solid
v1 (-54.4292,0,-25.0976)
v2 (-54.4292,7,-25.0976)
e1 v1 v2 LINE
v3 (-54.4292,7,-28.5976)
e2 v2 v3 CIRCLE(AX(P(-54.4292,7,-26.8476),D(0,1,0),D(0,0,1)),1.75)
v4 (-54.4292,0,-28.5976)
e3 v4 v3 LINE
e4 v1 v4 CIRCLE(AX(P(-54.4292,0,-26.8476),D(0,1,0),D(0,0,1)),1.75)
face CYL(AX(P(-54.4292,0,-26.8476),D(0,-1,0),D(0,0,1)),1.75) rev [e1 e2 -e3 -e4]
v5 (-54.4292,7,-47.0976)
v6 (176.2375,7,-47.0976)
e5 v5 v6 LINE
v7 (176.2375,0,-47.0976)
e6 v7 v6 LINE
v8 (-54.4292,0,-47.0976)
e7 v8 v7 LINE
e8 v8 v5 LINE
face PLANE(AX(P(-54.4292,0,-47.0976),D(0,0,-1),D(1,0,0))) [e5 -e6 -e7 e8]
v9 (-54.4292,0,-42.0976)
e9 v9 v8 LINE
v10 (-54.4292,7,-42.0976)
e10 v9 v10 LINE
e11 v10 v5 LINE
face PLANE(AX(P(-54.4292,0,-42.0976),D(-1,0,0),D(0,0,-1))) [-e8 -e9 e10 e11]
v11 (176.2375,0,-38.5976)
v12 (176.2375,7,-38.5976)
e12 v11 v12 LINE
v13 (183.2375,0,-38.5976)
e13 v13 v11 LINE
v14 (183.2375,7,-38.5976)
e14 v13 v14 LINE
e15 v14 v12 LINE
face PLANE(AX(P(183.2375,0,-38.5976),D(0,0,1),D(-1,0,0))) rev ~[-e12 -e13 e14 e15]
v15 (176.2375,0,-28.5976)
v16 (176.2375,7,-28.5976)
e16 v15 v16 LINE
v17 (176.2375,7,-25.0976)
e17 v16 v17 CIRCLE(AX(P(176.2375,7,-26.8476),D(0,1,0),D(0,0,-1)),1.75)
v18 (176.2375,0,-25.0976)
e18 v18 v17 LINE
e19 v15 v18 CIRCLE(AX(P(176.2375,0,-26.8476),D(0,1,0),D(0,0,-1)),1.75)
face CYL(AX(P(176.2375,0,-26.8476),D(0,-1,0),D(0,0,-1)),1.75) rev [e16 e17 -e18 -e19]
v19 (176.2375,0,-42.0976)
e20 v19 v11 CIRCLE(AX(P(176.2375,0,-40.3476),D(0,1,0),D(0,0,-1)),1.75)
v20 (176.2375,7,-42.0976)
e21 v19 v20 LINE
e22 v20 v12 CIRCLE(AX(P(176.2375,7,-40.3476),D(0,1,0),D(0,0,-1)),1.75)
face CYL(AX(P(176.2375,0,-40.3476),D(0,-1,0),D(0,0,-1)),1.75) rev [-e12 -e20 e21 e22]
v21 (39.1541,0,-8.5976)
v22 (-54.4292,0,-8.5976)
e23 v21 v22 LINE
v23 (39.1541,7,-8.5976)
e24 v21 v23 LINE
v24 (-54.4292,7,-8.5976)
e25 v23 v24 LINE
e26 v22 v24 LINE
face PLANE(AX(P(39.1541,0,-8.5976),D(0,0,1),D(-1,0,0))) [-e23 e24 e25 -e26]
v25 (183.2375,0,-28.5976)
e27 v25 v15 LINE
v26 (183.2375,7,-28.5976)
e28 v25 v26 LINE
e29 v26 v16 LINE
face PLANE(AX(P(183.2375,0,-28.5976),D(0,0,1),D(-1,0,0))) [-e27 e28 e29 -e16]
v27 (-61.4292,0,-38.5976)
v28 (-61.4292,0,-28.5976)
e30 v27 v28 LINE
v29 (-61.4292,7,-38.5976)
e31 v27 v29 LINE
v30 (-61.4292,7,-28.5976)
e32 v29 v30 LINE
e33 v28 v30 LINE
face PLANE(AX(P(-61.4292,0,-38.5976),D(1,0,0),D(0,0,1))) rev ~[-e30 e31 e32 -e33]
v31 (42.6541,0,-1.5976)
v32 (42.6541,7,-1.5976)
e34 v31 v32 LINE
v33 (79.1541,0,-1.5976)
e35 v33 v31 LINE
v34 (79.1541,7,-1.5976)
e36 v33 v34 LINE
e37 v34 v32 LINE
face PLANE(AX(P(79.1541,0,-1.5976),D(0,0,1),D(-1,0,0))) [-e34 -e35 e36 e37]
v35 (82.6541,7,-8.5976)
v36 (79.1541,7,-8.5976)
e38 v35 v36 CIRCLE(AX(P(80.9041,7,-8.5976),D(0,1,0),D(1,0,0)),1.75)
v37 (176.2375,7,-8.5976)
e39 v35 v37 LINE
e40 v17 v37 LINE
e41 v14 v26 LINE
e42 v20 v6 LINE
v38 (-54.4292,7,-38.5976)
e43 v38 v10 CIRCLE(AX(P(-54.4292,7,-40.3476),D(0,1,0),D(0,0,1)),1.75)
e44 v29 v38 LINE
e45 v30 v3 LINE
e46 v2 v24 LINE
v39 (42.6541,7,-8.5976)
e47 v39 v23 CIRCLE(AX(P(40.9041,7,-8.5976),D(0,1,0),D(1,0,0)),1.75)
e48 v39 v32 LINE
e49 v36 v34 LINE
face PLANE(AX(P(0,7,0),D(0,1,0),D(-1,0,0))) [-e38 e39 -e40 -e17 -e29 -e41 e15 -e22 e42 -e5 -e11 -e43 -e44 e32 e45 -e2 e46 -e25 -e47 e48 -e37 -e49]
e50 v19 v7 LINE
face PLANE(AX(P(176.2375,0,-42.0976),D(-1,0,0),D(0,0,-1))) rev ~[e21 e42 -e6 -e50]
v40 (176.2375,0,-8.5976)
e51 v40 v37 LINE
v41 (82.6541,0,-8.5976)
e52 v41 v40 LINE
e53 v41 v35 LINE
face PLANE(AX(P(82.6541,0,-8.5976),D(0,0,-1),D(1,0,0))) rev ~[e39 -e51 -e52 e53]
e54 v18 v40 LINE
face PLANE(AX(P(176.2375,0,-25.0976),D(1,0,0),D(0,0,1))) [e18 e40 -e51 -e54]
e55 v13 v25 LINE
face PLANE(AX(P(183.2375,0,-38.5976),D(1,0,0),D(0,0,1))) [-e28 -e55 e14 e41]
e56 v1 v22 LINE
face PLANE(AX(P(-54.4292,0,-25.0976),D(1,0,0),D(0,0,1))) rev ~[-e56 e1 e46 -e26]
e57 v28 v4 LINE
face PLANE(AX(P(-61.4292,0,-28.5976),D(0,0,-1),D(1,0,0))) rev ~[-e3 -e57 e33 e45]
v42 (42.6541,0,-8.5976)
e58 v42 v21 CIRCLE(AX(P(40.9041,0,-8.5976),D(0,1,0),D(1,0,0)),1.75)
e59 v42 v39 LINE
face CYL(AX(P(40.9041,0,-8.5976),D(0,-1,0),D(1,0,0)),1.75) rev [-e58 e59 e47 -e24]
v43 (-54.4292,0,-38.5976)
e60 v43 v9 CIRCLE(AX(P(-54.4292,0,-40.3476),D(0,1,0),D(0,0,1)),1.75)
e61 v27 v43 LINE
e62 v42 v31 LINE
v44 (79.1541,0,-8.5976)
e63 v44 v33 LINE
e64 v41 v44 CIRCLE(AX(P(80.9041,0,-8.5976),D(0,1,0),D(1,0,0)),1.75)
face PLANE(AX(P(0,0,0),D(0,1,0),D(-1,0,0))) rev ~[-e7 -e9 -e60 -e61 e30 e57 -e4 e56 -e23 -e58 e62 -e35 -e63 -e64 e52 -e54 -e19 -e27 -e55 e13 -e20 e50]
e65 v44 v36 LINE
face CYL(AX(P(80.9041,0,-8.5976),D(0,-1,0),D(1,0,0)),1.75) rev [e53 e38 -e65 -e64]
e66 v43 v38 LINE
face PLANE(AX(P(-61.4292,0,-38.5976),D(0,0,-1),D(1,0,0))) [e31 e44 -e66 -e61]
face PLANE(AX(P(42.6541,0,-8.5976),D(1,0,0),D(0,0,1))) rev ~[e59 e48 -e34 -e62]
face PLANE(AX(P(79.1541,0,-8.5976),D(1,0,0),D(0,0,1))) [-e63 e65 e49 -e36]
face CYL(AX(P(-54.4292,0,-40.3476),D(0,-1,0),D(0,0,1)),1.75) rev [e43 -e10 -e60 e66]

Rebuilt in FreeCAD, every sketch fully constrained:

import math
import FreeCAD as App
import Part
import Sketcher
from FreeCAD import Vector
Q = App.Units.Quantity

doc = App.newDocument("Part")
params = doc.addObject("Spreadsheet::Sheet", "Params")
for row, (alias, value) in enumerate([
    ("sketch1_width", "7 mm"),
    ("sketch1_height", "10 mm"),
    ("sketch1_height2", "5 mm"),
    ("sketch1_radius", "1.75 mm"),
    ("sketch1_width2", "36.5 mm"),
    ("pad1_length", "7 mm"),
], start=1):
    params.set(f"A{row}", alias)
    params.set(f"B{row}", "=" + value)
    params.setAlias(f"B{row}", alias)

body = doc.addObject("PartDesign::Body", "Body")

sketch1 = body.newObject("Sketcher::SketchObject", "Sketch")
sketch1.AttachmentSupport = (doc.getObject("XZ_Plane"), [""])
sketch1.MapMode = "FlatFace"
sketch1.addGeometry(Part.ArcOfCircle(Part.Circle(Vector(-54.4, -40.3, 0), Vector(0, 0, 1), 1.8), math.radians(-90), math.radians(90)), False)
sketch1.addGeometry(Part.LineSegment(Vector(-54.4, -38.6, 0), Vector(-61.4, -38.6, 0)), False)
sketch1.addGeometry(Part.LineSegment(Vector(-61.4, -38.6, 0), Vector(-61.4, -28.6, 0)), False)
sketch1.addGeometry(Part.LineSegment(Vector(-61.4, -28.6, 0), Vector(-54.4, -28.6, 0)), False)
sketch1.addGeometry(Part.ArcOfCircle(Part.Circle(Vector(-54.4, -26.8, 0), Vector(0, 0, 1), 1.8), math.radians(-90), math.radians(90)), False)
sketch1.addGeometry(Part.LineSegment(Vector(-54.4, -25.1, 0), Vector(-54.4, -8.6, 0)), False)
sketch1.addGeometry(Part.LineSegment(Vector(-54.4, -8.6, 0), Vector(39.2, -8.6, 0)), False)
sketch1.addGeometry(Part.ArcOfCircle(Part.Circle(Vector(40.9, -8.6, 0), Vector(0, 0, 1), 1.8), math.radians(180), math.radians(360)), False)
sketch1.addGeometry(Part.LineSegment(Vector(42.7, -8.6, 0), Vector(42.7, -1.6, 0)), False)
sketch1.addGeometry(Part.LineSegment(Vector(42.7, -1.6, 0), Vector(79.2, -1.6, 0)), False)
sketch1.addGeometry(Part.LineSegment(Vector(79.2, -1.6, 0), Vector(79.2, -8.6, 0)), False)
sketch1.addGeometry(Part.ArcOfCircle(Part.Circle(Vector(80.9, -8.6, 0), Vector(0, 0, 1), 1.8), math.radians(180), math.radians(360)), False)
sketch1.addGeometry(Part.LineSegment(Vector(82.7, -8.6, 0), Vector(176.2, -8.6, 0)), False)
sketch1.addGeometry(Part.LineSegment(Vector(176.2, -8.6, 0), Vector(176.2, -25.1, 0)), False)
sketch1.addGeometry(Part.ArcOfCircle(Part.Circle(Vector(176.2, -26.8, 0), Vector(0, 0, 1), 1.8), math.radians(90), math.radians(270)), False)
sketch1.addGeometry(Part.LineSegment(Vector(176.2, -28.6, 0), Vector(183.2, -28.6, 0)), False)
sketch1.addGeometry(Part.LineSegment(Vector(183.2, -28.6, 0), Vector(183.2, -38.6, 0)), False)
sketch1.addGeometry(Part.LineSegment(Vector(183.2, -38.6, 0), Vector(176.2, -38.6, 0)), False)
sketch1.addGeometry(Part.ArcOfCircle(Part.Circle(Vector(176.2, -40.3, 0), Vector(0, 0, 1), 1.8), math.radians(90), math.radians(270)), False)
sketch1.addGeometry(Part.LineSegment(Vector(176.2, -42.1, 0), Vector(176.2, -47.1, 0)), False)
sketch1.addGeometry(Part.LineSegment(Vector(176.2, -47.1, 0), Vector(-54.4, -47.1, 0)), False)
sketch1.addGeometry(Part.LineSegment(Vector(-54.4, -47.1, 0), Vector(-54.4, -42.1, 0)), False)
sketch1.addConstraint(Sketcher.Constraint("Tangent", 0, 2, 1, 1))
sketch1.addConstraint(Sketcher.Constraint("Coincident", 1, 2, 2, 1))
sketch1.addConstraint(Sketcher.Constraint("Coincident", 2, 2, 3, 1))
sketch1.addConstraint(Sketcher.Constraint("Tangent", 3, 2, 4, 1))
sketch1.addConstraint(Sketcher.Constraint("Coincident", 4, 2, 5, 1))
sketch1.addConstraint(Sketcher.Constraint("Coincident", 5, 2, 6, 1))
sketch1.addConstraint(Sketcher.Constraint("Coincident", 6, 2, 7, 1))
sketch1.addConstraint(Sketcher.Constraint("Tangent", 7, 2, 8, 1))
sketch1.addConstraint(Sketcher.Constraint("Coincident", 8, 2, 9, 1))
sketch1.addConstraint(Sketcher.Constraint("Coincident", 9, 2, 10, 1))
sketch1.addConstraint(Sketcher.Constraint("Tangent", 10, 2, 11, 1))
sketch1.addConstraint(Sketcher.Constraint("Coincident", 11, 2, 12, 1))
sketch1.addConstraint(Sketcher.Constraint("Coincident", 12, 2, 13, 1))
sketch1.addConstraint(Sketcher.Constraint("Coincident", 13, 2, 14, 1))
sketch1.addConstraint(Sketcher.Constraint("Tangent", 14, 2, 15, 1))
sketch1.addConstraint(Sketcher.Constraint("Coincident", 15, 2, 16, 1))
sketch1.addConstraint(Sketcher.Constraint("Coincident", 16, 2, 17, 1))
sketch1.addConstraint(Sketcher.Constraint("Tangent", 17, 2, 18, 1))
sketch1.addConstraint(Sketcher.Constraint("Coincident", 18, 2, 19, 1))
sketch1.addConstraint(Sketcher.Constraint("Coincident", 19, 2, 20, 1))
sketch1.addConstraint(Sketcher.Constraint("Coincident", 20, 2, 21, 1))
sketch1.addConstraint(Sketcher.Constraint("Coincident", 21, 2, 0, 1))
sketch1.addConstraint(Sketcher.Constraint("Horizontal", 1))
sketch1.addConstraint(Sketcher.Constraint("Vertical", 2))
sketch1.addConstraint(Sketcher.Constraint("Horizontal", 3))
sketch1.addConstraint(Sketcher.Constraint("Vertical", 5))
sketch1.addConstraint(Sketcher.Constraint("Horizontal", 6))
sketch1.addConstraint(Sketcher.Constraint("Vertical", 8))
sketch1.addConstraint(Sketcher.Constraint("Horizontal", 9))
sketch1.addConstraint(Sketcher.Constraint("Vertical", 10))
sketch1.addConstraint(Sketcher.Constraint("Horizontal", 12))
sketch1.addConstraint(Sketcher.Constraint("Vertical", 13))
sketch1.addConstraint(Sketcher.Constraint("Horizontal", 15))
sketch1.addConstraint(Sketcher.Constraint("Vertical", 16))
sketch1.addConstraint(Sketcher.Constraint("Horizontal", 17))
sketch1.addConstraint(Sketcher.Constraint("Vertical", 19))
sketch1.addConstraint(Sketcher.Constraint("Horizontal", 20))
sketch1.addConstraint(Sketcher.Constraint("Vertical", 21))
sketch1.addConstraint(Sketcher.Constraint("Equal", 0, 4))
sketch1.addConstraint(Sketcher.Constraint("Equal", 4, 7))
sketch1.addConstraint(Sketcher.Constraint("Equal", 7, 11))
sketch1.addConstraint(Sketcher.Constraint("Equal", 11, 14))
sketch1.addConstraint(Sketcher.Constraint("Equal", 14, 18))
sketch1.addConstraint(Sketcher.Constraint("Horizontal", 7, 3, 11, 3))
sketch1.addConstraint(Sketcher.Constraint("Horizontal", 4, 3, 14, 3))
sketch1.addConstraint(Sketcher.Constraint("Horizontal", 0, 3, 18, 3))
sketch1.addConstraint(Sketcher.Constraint("Horizontal", 11, 3, 5, 2))
sketch1.addConstraint(Sketcher.Constraint("Horizontal", 10, 2, 11, 2))
sketch1.addConstraint(Sketcher.Constraint("Vertical", 0, 3, 4, 3))
sketch1.addConstraint(Sketcher.Constraint("Vertical", 14, 3, 18, 3))
sketch1.addConstraint(Sketcher.Constraint("Vertical", 3, 2, 4, 2))
sketch1.addConstraint(Sketcher.Constraint("Vertical", 18, 3, 12, 2))
sketch1.addConstraint(Sketcher.Constraint("Vertical", 17, 2, 18, 2))
sketch1.addConstraint(Sketcher.Constraint("Vertical", 5, 2, 20, 2))
sketch1.addConstraint(Sketcher.Constraint("Equal", 6, 12))
sketch1.addConstraint(Sketcher.Constraint("Equal", 3, 15))
sketch1.addConstraint(Sketcher.Constraint("Equal", 17, 8))
sketch1.addConstraint(Sketcher.Constraint("DistanceX", 1, 2, 1, 1, Q("7 mm")))
sketch1.addConstraint(Sketcher.Constraint("DistanceY", 2, 1, 2, 2, Q("10 mm")))
sketch1.addConstraint(Sketcher.Constraint("DistanceY", 19, 2, 19, 1, Q("5 mm")))
sketch1.addConstraint(Sketcher.Constraint("Radius", 0, Q("1.75 mm")))
sketch1.addConstraint(Sketcher.Constraint("DistanceX", 9, 1, 9, 2, Q("36.5 mm")))
sketch1.addConstraint(Sketcher.Constraint("DistanceX", 20, 2, 20, 1, Q("230.6667 mm")))
sketch1.addConstraint(Sketcher.Constraint("DistanceY", 5, 1, 5, 2, Q("16.5 mm")))
sketch1.addConstraint(Sketcher.Constraint("DistanceX", -1, 1, 7, 3, Q("40.904 mm")))
sketch1.addConstraint(Sketcher.Constraint("DistanceY", 0, 3, -1, 1, Q("40.3476 mm")))
sketch1.setExpression("Constraints[57]", "Params.sketch1_width")
sketch1.setExpression("Constraints[58]", "Params.sketch1_height")
sketch1.setExpression("Constraints[59]", "Params.sketch1_height2")
sketch1.setExpression("Constraints[60]", "Params.sketch1_radius")
sketch1.setExpression("Constraints[61]", "Params.sketch1_width2")
pad1 = body.newObject("PartDesign::Pad", "Pad")
pad1.Profile = sketch1
pad1.setExpression("Length", "Params.pad1_length")
pad1.Reversed = True

doc.recompute()
